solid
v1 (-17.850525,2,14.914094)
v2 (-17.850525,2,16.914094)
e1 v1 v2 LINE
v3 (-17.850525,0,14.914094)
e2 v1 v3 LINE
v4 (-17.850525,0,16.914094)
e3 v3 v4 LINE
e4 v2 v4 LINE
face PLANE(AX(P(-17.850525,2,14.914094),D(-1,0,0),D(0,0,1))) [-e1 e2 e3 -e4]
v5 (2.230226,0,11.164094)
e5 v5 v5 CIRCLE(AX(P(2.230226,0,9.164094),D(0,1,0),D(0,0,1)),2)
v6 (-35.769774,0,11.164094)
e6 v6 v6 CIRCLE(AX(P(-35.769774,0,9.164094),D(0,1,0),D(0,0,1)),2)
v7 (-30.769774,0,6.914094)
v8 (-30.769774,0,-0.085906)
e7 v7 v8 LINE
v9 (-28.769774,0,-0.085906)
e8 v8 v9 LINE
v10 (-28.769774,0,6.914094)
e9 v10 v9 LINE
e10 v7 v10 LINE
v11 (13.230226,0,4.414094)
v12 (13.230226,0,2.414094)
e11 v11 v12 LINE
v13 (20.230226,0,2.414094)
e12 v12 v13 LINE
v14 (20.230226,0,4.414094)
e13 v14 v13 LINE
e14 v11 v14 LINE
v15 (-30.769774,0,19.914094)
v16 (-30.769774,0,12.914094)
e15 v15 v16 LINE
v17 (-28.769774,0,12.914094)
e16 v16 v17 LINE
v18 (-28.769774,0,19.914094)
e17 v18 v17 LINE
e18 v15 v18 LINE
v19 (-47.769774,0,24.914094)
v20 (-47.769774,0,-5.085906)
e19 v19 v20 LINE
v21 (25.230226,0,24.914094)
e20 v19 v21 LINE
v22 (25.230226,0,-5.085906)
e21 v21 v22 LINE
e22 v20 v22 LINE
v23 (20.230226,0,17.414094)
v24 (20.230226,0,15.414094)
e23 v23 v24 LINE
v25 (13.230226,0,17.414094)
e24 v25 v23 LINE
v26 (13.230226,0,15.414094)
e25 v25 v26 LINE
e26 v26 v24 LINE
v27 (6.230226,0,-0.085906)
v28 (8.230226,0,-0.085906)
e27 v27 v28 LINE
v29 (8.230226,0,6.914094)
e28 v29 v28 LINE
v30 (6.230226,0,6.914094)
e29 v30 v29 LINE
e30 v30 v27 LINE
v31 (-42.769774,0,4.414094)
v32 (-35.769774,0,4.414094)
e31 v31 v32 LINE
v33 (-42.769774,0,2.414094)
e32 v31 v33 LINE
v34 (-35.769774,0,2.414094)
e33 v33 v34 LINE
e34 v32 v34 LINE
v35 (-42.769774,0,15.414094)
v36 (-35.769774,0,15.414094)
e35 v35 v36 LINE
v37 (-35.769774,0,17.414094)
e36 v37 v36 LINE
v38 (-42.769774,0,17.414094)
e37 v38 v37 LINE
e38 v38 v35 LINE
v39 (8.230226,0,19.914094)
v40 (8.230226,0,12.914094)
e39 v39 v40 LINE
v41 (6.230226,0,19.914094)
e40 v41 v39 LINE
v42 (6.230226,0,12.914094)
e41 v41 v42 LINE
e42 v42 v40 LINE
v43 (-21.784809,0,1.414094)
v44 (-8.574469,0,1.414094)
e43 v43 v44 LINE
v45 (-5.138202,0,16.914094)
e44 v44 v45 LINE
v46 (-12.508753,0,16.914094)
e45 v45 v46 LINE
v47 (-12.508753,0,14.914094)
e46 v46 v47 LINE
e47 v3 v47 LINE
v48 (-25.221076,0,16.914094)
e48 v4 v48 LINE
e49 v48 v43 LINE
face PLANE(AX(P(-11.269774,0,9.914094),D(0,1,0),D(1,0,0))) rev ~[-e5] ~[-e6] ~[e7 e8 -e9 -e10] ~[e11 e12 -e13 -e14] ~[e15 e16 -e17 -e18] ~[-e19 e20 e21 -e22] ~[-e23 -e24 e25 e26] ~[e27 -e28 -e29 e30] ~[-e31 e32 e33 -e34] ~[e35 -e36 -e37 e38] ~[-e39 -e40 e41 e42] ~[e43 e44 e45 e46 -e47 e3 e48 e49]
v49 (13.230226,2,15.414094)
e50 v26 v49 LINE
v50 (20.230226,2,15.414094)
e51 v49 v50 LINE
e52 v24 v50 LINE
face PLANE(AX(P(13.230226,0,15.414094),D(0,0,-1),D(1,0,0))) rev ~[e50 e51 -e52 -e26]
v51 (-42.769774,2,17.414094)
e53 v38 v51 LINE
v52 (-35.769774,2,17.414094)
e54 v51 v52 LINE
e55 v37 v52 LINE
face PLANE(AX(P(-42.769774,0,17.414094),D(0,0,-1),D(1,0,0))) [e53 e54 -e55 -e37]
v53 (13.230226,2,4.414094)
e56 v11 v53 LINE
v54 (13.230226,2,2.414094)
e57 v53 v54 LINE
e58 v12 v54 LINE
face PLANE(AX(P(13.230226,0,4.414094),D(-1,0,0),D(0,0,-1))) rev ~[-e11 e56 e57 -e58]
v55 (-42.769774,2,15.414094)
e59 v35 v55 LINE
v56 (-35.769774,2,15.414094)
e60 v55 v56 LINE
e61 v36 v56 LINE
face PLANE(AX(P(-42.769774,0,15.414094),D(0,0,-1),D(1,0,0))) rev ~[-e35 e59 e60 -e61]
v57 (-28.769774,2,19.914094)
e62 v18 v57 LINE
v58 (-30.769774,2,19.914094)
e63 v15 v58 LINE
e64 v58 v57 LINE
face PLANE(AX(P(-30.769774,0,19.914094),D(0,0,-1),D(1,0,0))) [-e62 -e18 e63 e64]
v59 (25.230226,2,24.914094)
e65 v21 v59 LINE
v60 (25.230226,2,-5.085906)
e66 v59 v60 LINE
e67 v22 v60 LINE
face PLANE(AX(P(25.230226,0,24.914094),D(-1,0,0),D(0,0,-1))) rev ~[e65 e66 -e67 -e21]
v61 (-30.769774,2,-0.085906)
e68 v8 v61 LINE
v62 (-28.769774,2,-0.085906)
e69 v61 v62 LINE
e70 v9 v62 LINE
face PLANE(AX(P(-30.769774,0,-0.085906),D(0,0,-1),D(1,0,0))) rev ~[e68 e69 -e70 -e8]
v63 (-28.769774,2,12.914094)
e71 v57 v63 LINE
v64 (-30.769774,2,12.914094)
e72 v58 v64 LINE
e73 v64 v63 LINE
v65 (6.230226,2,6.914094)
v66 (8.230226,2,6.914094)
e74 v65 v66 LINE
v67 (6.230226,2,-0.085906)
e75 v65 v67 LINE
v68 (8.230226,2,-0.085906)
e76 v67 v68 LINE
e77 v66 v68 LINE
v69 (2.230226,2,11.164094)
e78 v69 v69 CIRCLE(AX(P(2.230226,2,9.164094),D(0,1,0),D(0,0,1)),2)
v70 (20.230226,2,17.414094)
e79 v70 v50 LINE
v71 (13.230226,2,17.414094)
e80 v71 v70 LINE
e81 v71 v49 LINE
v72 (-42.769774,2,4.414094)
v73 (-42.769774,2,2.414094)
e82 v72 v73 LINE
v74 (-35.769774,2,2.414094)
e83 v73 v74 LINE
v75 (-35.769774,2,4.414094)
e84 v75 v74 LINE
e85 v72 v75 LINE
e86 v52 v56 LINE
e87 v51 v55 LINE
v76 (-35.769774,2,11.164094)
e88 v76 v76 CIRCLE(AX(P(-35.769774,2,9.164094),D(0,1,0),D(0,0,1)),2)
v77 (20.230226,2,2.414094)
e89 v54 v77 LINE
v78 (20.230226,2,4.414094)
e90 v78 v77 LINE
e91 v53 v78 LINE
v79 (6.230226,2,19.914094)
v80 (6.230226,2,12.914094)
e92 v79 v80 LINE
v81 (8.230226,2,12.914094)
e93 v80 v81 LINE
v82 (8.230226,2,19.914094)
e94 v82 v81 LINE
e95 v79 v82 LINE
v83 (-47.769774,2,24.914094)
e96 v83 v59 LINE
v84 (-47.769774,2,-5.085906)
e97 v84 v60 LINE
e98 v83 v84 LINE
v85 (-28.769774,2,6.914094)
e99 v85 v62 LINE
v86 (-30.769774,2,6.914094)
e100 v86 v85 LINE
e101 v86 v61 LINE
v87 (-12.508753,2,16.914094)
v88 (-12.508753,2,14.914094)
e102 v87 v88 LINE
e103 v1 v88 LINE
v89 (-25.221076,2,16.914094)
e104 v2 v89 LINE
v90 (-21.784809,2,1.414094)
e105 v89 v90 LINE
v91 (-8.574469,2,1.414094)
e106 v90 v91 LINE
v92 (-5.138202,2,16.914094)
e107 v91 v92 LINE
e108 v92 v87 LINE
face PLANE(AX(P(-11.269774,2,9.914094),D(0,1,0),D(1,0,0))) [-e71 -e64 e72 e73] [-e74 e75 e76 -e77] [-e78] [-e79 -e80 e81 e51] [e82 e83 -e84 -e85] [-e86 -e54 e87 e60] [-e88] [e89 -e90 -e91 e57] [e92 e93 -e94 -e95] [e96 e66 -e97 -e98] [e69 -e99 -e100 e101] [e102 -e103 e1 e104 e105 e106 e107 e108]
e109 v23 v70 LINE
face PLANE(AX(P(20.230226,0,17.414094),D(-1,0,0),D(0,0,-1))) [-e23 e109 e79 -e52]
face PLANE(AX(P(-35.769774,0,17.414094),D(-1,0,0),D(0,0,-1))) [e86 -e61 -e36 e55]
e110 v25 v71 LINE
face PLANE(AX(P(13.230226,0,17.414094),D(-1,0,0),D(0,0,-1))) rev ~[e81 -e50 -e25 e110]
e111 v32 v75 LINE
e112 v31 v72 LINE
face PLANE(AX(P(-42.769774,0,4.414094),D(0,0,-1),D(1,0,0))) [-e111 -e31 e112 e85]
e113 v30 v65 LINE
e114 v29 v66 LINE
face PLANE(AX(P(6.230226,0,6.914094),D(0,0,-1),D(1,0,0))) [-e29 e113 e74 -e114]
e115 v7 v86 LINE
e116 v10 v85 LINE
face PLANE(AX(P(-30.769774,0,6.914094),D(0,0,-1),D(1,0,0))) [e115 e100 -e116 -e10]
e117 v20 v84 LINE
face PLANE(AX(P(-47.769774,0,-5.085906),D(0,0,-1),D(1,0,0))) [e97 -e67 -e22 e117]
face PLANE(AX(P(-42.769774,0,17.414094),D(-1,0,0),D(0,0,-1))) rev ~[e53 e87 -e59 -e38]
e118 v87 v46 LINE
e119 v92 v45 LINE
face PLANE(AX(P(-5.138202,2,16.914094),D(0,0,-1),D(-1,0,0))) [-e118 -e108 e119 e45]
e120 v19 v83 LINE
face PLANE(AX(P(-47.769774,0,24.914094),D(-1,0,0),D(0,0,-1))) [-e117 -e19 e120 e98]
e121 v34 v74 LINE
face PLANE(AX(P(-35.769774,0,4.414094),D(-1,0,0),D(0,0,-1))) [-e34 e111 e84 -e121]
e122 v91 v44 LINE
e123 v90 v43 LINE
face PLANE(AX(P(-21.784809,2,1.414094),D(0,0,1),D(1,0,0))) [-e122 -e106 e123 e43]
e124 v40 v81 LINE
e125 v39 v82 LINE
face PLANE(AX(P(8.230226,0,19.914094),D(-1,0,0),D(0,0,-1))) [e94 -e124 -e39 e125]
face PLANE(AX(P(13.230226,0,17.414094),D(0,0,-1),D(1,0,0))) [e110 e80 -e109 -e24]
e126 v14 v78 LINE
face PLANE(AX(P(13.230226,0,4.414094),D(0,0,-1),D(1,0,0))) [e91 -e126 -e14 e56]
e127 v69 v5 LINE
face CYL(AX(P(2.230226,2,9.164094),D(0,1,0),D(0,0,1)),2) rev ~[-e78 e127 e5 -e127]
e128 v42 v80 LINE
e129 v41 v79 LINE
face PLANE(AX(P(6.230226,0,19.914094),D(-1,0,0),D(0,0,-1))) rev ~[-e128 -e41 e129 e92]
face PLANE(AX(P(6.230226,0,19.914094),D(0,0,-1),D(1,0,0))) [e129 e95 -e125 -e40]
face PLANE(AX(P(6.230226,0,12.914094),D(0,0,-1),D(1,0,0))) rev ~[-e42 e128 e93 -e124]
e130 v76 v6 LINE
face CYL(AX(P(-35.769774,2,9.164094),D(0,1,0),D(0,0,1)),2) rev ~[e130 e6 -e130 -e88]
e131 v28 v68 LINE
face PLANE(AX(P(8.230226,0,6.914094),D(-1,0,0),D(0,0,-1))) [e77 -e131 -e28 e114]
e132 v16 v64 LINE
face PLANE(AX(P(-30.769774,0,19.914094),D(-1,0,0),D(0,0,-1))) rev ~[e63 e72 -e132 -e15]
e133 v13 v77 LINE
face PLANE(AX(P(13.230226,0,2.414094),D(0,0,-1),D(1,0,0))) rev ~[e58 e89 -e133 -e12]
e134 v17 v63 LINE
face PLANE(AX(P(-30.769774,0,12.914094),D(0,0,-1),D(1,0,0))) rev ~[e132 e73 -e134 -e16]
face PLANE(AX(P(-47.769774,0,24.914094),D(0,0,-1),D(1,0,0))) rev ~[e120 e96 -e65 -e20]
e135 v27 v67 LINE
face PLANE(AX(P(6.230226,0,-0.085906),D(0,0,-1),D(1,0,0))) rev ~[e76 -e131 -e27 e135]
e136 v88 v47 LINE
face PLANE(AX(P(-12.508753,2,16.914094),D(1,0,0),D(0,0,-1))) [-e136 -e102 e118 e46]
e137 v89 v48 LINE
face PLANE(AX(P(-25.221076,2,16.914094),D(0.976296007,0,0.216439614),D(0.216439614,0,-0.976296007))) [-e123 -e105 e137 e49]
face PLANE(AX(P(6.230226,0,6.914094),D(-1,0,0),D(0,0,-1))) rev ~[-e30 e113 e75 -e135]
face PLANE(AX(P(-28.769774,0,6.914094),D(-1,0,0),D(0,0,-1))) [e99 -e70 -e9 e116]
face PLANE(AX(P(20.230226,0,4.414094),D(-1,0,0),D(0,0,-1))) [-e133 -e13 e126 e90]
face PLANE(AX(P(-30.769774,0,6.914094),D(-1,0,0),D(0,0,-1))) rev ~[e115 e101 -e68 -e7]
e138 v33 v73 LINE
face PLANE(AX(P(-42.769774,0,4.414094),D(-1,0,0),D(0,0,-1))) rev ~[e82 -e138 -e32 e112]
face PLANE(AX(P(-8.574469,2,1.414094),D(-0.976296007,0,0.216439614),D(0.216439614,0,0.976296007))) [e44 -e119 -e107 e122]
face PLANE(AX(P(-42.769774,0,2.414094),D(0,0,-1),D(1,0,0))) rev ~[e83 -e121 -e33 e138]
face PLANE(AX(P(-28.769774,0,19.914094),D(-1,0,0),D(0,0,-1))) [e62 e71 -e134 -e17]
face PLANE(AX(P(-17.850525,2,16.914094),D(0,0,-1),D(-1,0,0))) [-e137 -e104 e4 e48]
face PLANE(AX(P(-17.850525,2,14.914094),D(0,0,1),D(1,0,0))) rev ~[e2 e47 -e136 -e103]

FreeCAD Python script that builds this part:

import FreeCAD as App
import Part
import Sketcher

V = App.Vector
Q = App.Units.Quantity

doc = App.newDocument("Part")
body = doc.addObject("PartDesign::Body", "Body")

# Sketch on XZ plane
sketch1 = body.newObject("Sketcher::SketchObject", "Sketch")
sketch1.AttachmentSupport = (doc.getObject("XZ_Plane"), [""])
sketch1.MapMode = "FlatFace"
sketch1.addGeometry([
    Part.LineSegment(V(-47.8, -5.1, 0), V(-47.8, 24.9, 0)),  # 0
    Part.LineSegment(V(-47.8, 24.9, 0), V(25.2, 24.9, 0)),  # 1
    Part.LineSegment(V(25.2, 24.9, 0), V(25.2, -5.1, 0)),  # 2
    Part.LineSegment(V(25.2, -5.1, 0), V(-47.8, -5.1, 0)),  # 3
    Part.LineSegment(V(-35.8, 17.4, 0), V(-42.8, 17.4, 0)),  # 4
    Part.LineSegment(V(-42.8, 17.4, 0), V(-42.8, 15.4, 0)),  # 5
    Part.LineSegment(V(-42.8, 15.4, 0), V(-35.8, 15.4, 0)),  # 6
    Part.LineSegment(V(-35.8, 15.4, 0), V(-35.8, 17.4, 0)),  # 7
    Part.LineSegment(V(-28.8, 19.9, 0), V(-30.8, 19.9, 0)),  # 8
    Part.LineSegment(V(-30.8, 19.9, 0), V(-30.8, 12.9, 0)),  # 9
    Part.LineSegment(V(-30.8, 12.9, 0), V(-28.8, 12.9, 0)),  # 10
    Part.LineSegment(V(-28.8, 12.9, 0), V(-28.8, 19.9, 0)),  # 11
    Part.LineSegment(V(8.2, 19.9, 0), V(6.2, 19.9, 0)),  # 12
    Part.LineSegment(V(6.2, 19.9, 0), V(6.2, 12.9, 0)),  # 13
    Part.LineSegment(V(6.2, 12.9, 0), V(8.2, 12.9, 0)),  # 14
    Part.LineSegment(V(8.2, 12.9, 0), V(8.2, 19.9, 0)),  # 15
    Part.LineSegment(V(20.2, 17.4, 0), V(13.2, 17.4, 0)),  # 16
    Part.LineSegment(V(13.2, 17.4, 0), V(13.2, 15.4, 0)),  # 17
    Part.LineSegment(V(13.2, 15.4, 0), V(20.2, 15.4, 0)),  # 18
    Part.LineSegment(V(20.2, 15.4, 0), V(20.2, 17.4, 0)),  # 19
    Part.LineSegment(V(-35.8, 4.4, 0), V(-42.8, 4.4, 0)),  # 20
    Part.LineSegment(V(-42.8, 4.4, 0), V(-42.8, 2.4, 0)),  # 21
    Part.LineSegment(V(-42.8, 2.4, 0), V(-35.8, 2.4, 0)),  # 22
    Part.LineSegment(V(-35.8, 2.4, 0), V(-35.8, 4.4, 0)),  # 23
    Part.LineSegment(V(-28.8, 6.9, 0), V(-30.8, 6.9, 0)),  # 24
    Part.LineSegment(V(-30.8, 6.9, 0), V(-30.8, -0.1, 0)),  # 25
    Part.LineSegment(V(-30.8, -0.1, 0), V(-28.8, -0.1, 0)),  # 26
    Part.LineSegment(V(-28.8, -0.1, 0), V(-28.8, 6.9, 0)),  # 27
    Part.LineSegment(V(8.2, 6.9, 0), V(6.2, 6.9, 0)),  # 28
    Part.LineSegment(V(6.2, 6.9, 0), V(6.2, -0.1, 0)),  # 29
    Part.LineSegment(V(6.2, -0.1, 0), V(8.2, -0.1, 0)),  # 30
    Part.LineSegment(V(8.2, -0.1, 0), V(8.2, 6.9, 0)),  # 31
    Part.LineSegment(V(20.2, 4.4, 0), V(13.2, 4.4, 0)),  # 32
    Part.LineSegment(V(13.2, 4.4, 0), V(13.2, 2.4, 0)),  # 33
    Part.LineSegment(V(13.2, 2.4, 0), V(20.2, 2.4, 0)),  # 34
    Part.LineSegment(V(20.2, 2.4, 0), V(20.2, 4.4, 0)),  # 35
], False)
sketch1.addConstraint([
    Sketcher.Constraint("Coincident", 0, 2, 1, 1),
    Sketcher.Constraint("Coincident", 1, 2, 2, 1),
    Sketcher.Constraint("Coincident", 2, 2, 3, 1),
    Sketcher.Constraint("Coincident", 3, 2, 0, 1),
    Sketcher.Constraint("Coincident", 4, 2, 5, 1),
    Sketcher.Constraint("Coincident", 5, 2, 6, 1),
    Sketcher.Constraint("Coincident", 6, 2, 7, 1),
    Sketcher.Constraint("Coincident", 7, 2, 4, 1),
    Sketcher.Constraint("Coincident", 8, 2, 9, 1),
    Sketcher.Constraint("Coincident", 9, 2, 10, 1),
    Sketcher.Constraint("Coincident", 10, 2, 11, 1),
    Sketcher.Constraint("Coincident", 11, 2, 8, 1),
    Sketcher.Constraint("Coincident", 12, 2, 13, 1),
    Sketcher.Constraint("Coincident", 13, 2, 14, 1),
    Sketcher.Constraint("Coincident", 14, 2, 15, 1),
    Sketcher.Constraint("Coincident", 15, 2, 12, 1),
    Sketcher.Constraint("Coincident", 16, 2, 17, 1),
    Sketcher.Constraint("Coincident", 17, 2, 18, 1),
    Sketcher.Constraint("Coincident", 18, 2, 19, 1),
    Sketcher.Constraint("Coincident", 19, 2, 16, 1),
    Sketcher.Constraint("Coincident", 20, 2, 21, 1),
    Sketcher.Constraint("Coincident", 21, 2, 22, 1),
    Sketcher.Constraint("Coincident", 22, 2, 23, 1),
    Sketcher.Constraint("Coincident", 23, 2, 20, 1),
    Sketcher.Constraint("Coincident", 24, 2, 25, 1),
    Sketcher.Constraint("Coincident", 25, 2, 26, 1),
    Sketcher.Constraint("Coincident", 26, 2, 27, 1),
    Sketcher.Constraint("Coincident", 27, 2, 24, 1),
    Sketcher.Constraint("Coincident", 28, 2, 29, 1),
    Sketcher.Constraint("Coincident", 29, 2, 30, 1),
    Sketcher.Constraint("Coincident", 30, 2, 31, 1),
    Sketcher.Constraint("Coincident", 31, 2, 28, 1),
    Sketcher.Constraint("Coincident", 32, 2, 33, 1),
    Sketcher.Constraint("Coincident", 33, 2, 34, 1),
    Sketcher.Constraint("Coincident", 34, 2, 35, 1),
    Sketcher.Constraint("Coincident", 35, 2, 32, 1),
    Sketcher.Constraint("Vertical", 0),
    Sketcher.Constraint("Horizontal", 1),
    Sketcher.Constraint("Vertical", 2),
    Sketcher.Constraint("Horizontal", 3),
    Sketcher.Constraint("Horizontal", 4),
    Sketcher.Constraint("Vertical", 5),
    Sketcher.Constraint("Horizontal", 6),
    Sketcher.Constraint("Vertical", 7),
    Sketcher.Constraint("Horizontal", 8),
    Sketcher.Constraint("Vertical", 9),
    Sketcher.Constraint("Horizontal", 10),
    Sketcher.Constraint("Vertical", 11),
    Sketcher.Constraint("Horizontal", 12),
    Sketcher.Constraint("Vertical", 13),
    Sketcher.Constraint("Horizontal", 14),
    Sketcher.Constraint("Vertical", 15),
    Sketcher.Constraint("Horizontal", 16),
    Sketcher.Constraint("Vertical", 17),
    Sketcher.Constraint("Horizontal", 18),
    Sketcher.Constraint("Vertical", 19),
    Sketcher.Constraint("Horizontal", 20),
    Sketcher.Constraint("Vertical", 21),
    Sketcher.Constraint("Horizontal", 22),
    Sketcher.Constraint("Vertical", 23),
    Sketcher.Constraint("Horizontal", 24),
    Sketcher.Constraint("Vertical", 25),
    Sketcher.Constraint("Horizontal", 26),
    Sketcher.Constraint("Vertical", 27),
    Sketcher.Constraint("Horizontal", 28),
    Sketcher.Constraint("Vertical", 29),
    Sketcher.Constraint("Horizontal", 30),
    Sketcher.Constraint("Vertical", 31),
    Sketcher.Constraint("Horizontal", 32),
    Sketcher.Constraint("Vertical", 33),
    Sketcher.Constraint("Horizontal", 34),
    Sketcher.Constraint("Vertical", 35),
    Sketcher.Constraint("Horizontal", 11, 2, 12, 2),
    Sketcher.Constraint("Horizontal", 10, 2, 13, 2),
    Sketcher.Constraint("Horizontal", 7, 2, 16, 2),
    Sketcher.Constraint("Horizontal", 6, 2, 17, 2),
    Sketcher.Constraint("Horizontal", 27, 2, 28, 2),
    Sketcher.Constraint("Horizontal", 26, 2, 29, 2),
    Sketcher.Constraint("Horizontal", 23, 2, 32, 2),
    Sketcher.Constraint("Horizontal", 22, 2, 33, 2),
    Sketcher.Constraint("Vertical", 5, 2, 20, 2),
    Sketcher.Constraint("Vertical", 7, 2, 22, 2),
    Sketcher.Constraint("Vertical", 9, 2, 24, 2),
    Sketcher.Constraint("Vertical", 11, 2, 26, 2),
    Sketcher.Constraint("Vertical", 13, 2, 28, 2),
    Sketcher.Constraint("Vertical", 15, 2, 30, 2),
    Sketcher.Constraint("Vertical", 17, 2, 32, 2),
    Sketcher.Constraint("Vertical", 19, 2, 34, 2),
    Sketcher.Constraint("Equal", 10, 12),
    Sketcher.Constraint("Equal", 6, 16),
    Sketcher.Constraint("Equal", 30, 5),
    Sketcher.Constraint("Equal", 34, 9),
    Sketcher.Constraint("Equal", 19, 21),
    Sketcher.Constraint("Equal", 15, 25),
    Sketcher.Constraint("DistanceX", 1, 1, 1, 2, Q("73 mm")),
    Sketcher.Constraint("DistanceX", 4, 2, 4, 1, Q("7 mm")),
    Sketcher.Constraint("DistanceX", 8, 2, 8, 1, Q("2 mm")),
    Sketcher.Constraint("DistanceY", 0, 1, 0, 2, Q("30 mm")),
    Sketcher.Constraint("DistanceX", 0, 2, 4, 2, Q("5 mm")),
    Sketcher.Constraint("DistanceX", 7, 2, 8, 2, Q("5 mm")),
    Sketcher.Constraint("DistanceY", 8, 2, 0, 2, Q("5 mm")),
    Sketcher.Constraint("DistanceX", 12, 2, 1, 2, Q("19 mm")),
    Sketcher.Constraint("DistanceX", 15, 2, 16, 2, Q("5 mm")),
    Sketcher.Constraint("DistanceY", 20, 2, 5, 2, Q("11 mm")),
    Sketcher.Constraint("DistanceY", 24, 2, 9, 2, Q("6 mm")),
    Sketcher.Constraint("DistanceY", 4, 2, 0, 2, Q("7.5 mm")),
    Sketcher.Constraint("DistanceX", 0, 2, -1, 1, Q("47.769774 mm")),
    Sketcher.Constraint("DistanceY", -1, 1, 0, 2, Q("24.914094 mm")),
])
pad1 = body.newObject("PartDesign::Pad", "Pad")
pad1.Profile = sketch1
pad1.Length = 2
pad1.Reversed = True

# Sketch on XZ plane
sketch2 = body.newObject("Sketcher::SketchObject", "Sketch001")
sketch2.AttachmentSupport = (doc.getObject("XZ_Plane"), [""])
sketch2.MapMode = "FlatFace"
sketch2.AttachmentOffset = App.Placement(V(0, 0, -2), App.Rotation())
sketch2.addGeometry([
    Part.LineSegment(V(-17.9, 14.9, 0), V(-12.5, 14.9, 0)),  # 0
    Part.LineSegment(V(-12.5, 14.9, 0), V(-12.5, 16.9, 0)),  # 1
    Part.LineSegment(V(-12.5, 16.9, 0), V(-5.1, 16.9, 0)),  # 2
    Part.LineSegment(V(-5.1, 16.9, 0), V(-8.6, 1.4, 0)),  # 3
    Part.LineSegment(V(-8.6, 1.4, 0), V(-21.8, 1.4, 0)),  # 4
    Part.LineSegment(V(-21.8, 1.4, 0), V(-25.2, 16.9, 0)),  # 5
    Part.LineSegment(V(-25.2, 16.9, 0), V(-17.9, 16.9, 0)),  # 6
    Part.LineSegment(V(-17.9, 16.9, 0), V(-17.9, 14.9, 0)),  # 7
], False)
sketch2.addConstraint([
    Sketcher.Constraint("Coincident", 0, 2, 1, 1),
    Sketcher.Constraint("Coincident", 1, 2, 2, 1),
    Sketcher.Constraint("Coincident", 2, 2, 3, 1),
    Sketcher.Constraint("Coincident", 3, 2, 4, 1),
    Sketcher.Constraint("Coincident", 4, 2, 5, 1),
    Sketcher.Constraint("Coincident", 5, 2, 6, 1),
    Sketcher.Constraint("Coincident", 6, 2, 7, 1),
    Sketcher.Constraint("Coincident", 7, 2, 0, 1),
    Sketcher.Constraint("Horizontal", 0),
    Sketcher.Constraint("Vertical", 1),
    Sketcher.Constraint("Horizontal", 2),
    Sketcher.Constraint("Horizontal", 4),
    Sketcher.Constraint("Horizontal", 6),
    Sketcher.Constraint("Vertical", 7),
    Sketcher.Constraint("Horizontal", 2, 2, 5, 2),
    Sketcher.Constraint("Equal", 2, 6),
    Sketcher.Constraint("Equal", 3, 5),
    Sketcher.Constraint("DistanceY", 1, 1, 1, 2, Q("2 mm")),
    Sketcher.Constraint("Angle", 3, Q("-102.5 deg")),
    Sketcher.Constraint("DistanceY", 3, 2, 0, 2, Q("13.5 mm")),
    Sketcher.Constraint("DistanceX", 2, 1, 2, 2, Q("7.370551 mm")),
    Sketcher.Constraint("DistanceX", 4, 2, 4, 1, Q("13.210339 mm")),
    Sketcher.Constraint("DistanceX", 3, 2, -1, 1, Q("8.574469 mm")),
    Sketcher.Constraint("DistanceY", -1, 1, 0, 2, Q("14.914094 mm")),
])
pocket1 = body.newObject("PartDesign::Pocket", "Pocket")
pocket1.Profile = sketch2
pocket1.Length = 10
pocket1.Reversed = True

# Sketch on XZ plane
sketch3 = body.newObject("Sketcher::SketchObject", "Sketch002")
sketch3.AttachmentSupport = (doc.getObject("XZ_Plane"), [""])
sketch3.MapMode = "FlatFace"
sketch3.AttachmentOffset = App.Placement(V(0, 0, -2), App.Rotation())
sketch3.addGeometry([
    Part.Circle(V(-35.8, 9.2, 0), V(0, 0, 1), 2),
    Part.Circle(V(2.2, 9.2, 0), V(0, 0, 1), 2),
], False)
sketch3.addConstraint([
    Sketcher.Constraint("Equal", 0, 1),
    Sketcher.Constraint("Horizontal", 0, 3, 1, 3),
    Sketcher.Constraint("Diameter", 0, Q("4 mm")),
    Sketcher.Constraint("DistanceX", 0, 3, 1, 3, Q("38 mm")),
    Sketcher.Constraint("DistanceX", 0, 3, -1, 1, Q("35.769774 mm")),
    Sketcher.Constraint("DistanceY", -1, 1, 0, 3, Q("9.164094 mm")),
])
pocket2 = body.newObject("PartDesign::Pocket", "Pocket001")
pocket2.Profile = sketch3
pocket2.Length = 19
pocket2.Reversed = True

doc.recompute()
